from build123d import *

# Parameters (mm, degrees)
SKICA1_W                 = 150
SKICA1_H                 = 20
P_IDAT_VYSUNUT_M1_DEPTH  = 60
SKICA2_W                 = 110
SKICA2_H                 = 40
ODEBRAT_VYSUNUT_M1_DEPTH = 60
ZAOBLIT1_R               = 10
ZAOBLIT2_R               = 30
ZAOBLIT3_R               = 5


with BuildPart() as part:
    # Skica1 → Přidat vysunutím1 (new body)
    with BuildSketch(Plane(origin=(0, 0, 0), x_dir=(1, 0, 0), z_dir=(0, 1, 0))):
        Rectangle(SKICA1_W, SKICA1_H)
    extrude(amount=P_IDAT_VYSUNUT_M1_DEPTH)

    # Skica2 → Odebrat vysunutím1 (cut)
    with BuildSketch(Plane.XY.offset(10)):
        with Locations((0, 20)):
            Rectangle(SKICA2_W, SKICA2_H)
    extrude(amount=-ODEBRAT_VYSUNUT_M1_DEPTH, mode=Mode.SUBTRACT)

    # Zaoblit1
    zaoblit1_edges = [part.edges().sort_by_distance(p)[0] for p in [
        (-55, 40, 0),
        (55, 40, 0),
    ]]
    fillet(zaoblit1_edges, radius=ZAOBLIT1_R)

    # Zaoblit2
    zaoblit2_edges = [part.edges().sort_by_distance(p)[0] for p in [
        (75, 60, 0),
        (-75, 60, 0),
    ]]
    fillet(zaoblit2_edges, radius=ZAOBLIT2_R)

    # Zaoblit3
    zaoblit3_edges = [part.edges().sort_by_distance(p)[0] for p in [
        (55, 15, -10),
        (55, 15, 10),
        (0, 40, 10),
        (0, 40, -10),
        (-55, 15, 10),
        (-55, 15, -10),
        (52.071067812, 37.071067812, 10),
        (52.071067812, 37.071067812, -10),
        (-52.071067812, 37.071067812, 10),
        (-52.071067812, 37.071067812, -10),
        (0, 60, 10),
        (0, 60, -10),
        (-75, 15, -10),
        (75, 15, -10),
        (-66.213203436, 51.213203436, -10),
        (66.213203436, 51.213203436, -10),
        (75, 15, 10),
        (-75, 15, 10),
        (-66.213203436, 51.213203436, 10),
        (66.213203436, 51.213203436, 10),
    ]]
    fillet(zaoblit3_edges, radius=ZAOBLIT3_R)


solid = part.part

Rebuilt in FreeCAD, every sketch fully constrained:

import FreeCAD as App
import Part
import Sketcher

V = App.Vector


def edges_at(feature, points):
    """Names of the edges that pass closest to the given points."""
    edges = feature.Shape.Edges
    near = lambda p: min(range(len(edges)), key=lambda i: edges[i].distToShape(Part.Vertex(*p))[0])
    return sorted({f"Edge{near(p) + 1}" for p in points})

doc = App.newDocument("Part")
body = doc.addObject("PartDesign::Body", "Body")

# Sketch on XZ plane
sketch1 = body.newObject("Sketcher::SketchObject", "Sketch")
sketch1.AttachmentSupport = (doc.getObject("XZ_Plane"), [""])
sketch1.MapMode = "FlatFace"
sketch1.addGeometry(Part.LineSegment(V(-75, -10, 0), V(-75, 10, 0)), False)
sketch1.addGeometry(Part.LineSegment(V(-75, 10, 0), V(75, 10, 0)), False)
sketch1.addGeometry(Part.LineSegment(V(75, 10, 0), V(75, -10, 0)), False)
sketch1.addGeometry(Part.LineSegment(V(75, -10, 0), V(-75, -10, 0)), False)
sketch1.addConstraint(Sketcher.Constraint("Coincident", 0, 2, 1, 1))
sketch1.addConstraint(Sketcher.Constraint("Coincident", 1, 2, 2, 1))
sketch1.addConstraint(Sketcher.Constraint("Coincident", 2, 2, 3, 1))
sketch1.addConstraint(Sketcher.Constraint("Coincident", 3, 2, 0, 1))
sketch1.addConstraint(Sketcher.Constraint("Vertical", 0))
sketch1.addConstraint(Sketcher.Constraint("Horizontal", 1))
sketch1.addConstraint(Sketcher.Constraint("Vertical", 2))
sketch1.addConstraint(Sketcher.Constraint("Horizontal", 3))
sketch1.addConstraint(Sketcher.Constraint("Symmetric", 0, 2, 2, 2, -1, 1))
sketch1.addConstraint(Sketcher.Constraint("DistanceX", 1, 1, 1, 2, 150.0))
sketch1.addConstraint(Sketcher.Constraint("DistanceY", 0, 1, 0, 2, 20.0))
pad1 = body.newObject("PartDesign::Pad", "Pad")
pad1.Profile = sketch1
pad1.Length = 60
pad1.Reversed = True

# Sketch on XY plane
sketch2 = body.newObject("Sketcher::SketchObject", "Sketch001")
sketch2.AttachmentSupport = (doc.getObject("XY_Plane"), [""])
sketch2.MapMode = "FlatFace"
sketch2.AttachmentOffset = App.Placement(V(0, 0, 10), App.Rotation())
sketch2.addGeometry(Part.LineSegment(V(-55, 40, 0), V(-55, 0, 0)), False)
sketch2.addGeometry(Part.LineSegment(V(-55, 0, 0), V(55, 0, 0)), False)
sketch2.addGeometry(Part.LineSegment(V(55, 0, 0), V(55, 40, 0)), False)
sketch2.addGeometry(Part.LineSegment(V(55, 40, 0), V(-55, 40, 0)), False)
sketch2.addConstraint(Sketcher.Constraint("Coincident", 0, 2, 1, 1))
sketch2.addConstraint(Sketcher.Constraint("Coincident", 1, 2, 2, 1))
sketch2.addConstraint(Sketcher.Constraint("Coincident", 2, 2, 3, 1))
sketch2.addConstraint(Sketcher.Constraint("Coincident", 3, 2, 0, 1))
sketch2.addConstraint(Sketcher.Constraint("Vertical", 0))
sketch2.addConstraint(Sketcher.Constraint("Horizontal", 1))
sketch2.addConstraint(Sketcher.Constraint("Vertical", 2))
sketch2.addConstraint(Sketcher.Constraint("Horizontal", 3))
sketch2.addConstraint(Sketcher.Constraint("Symmetric", 0, 2, 1, 2, -1, 1))
sketch2.addConstraint(Sketcher.Constraint("DistanceX", 1, 1, 1, 2, 110.0))
sketch2.addConstraint(Sketcher.Constraint("DistanceY", 0, 2, 0, 1, 40.0))
pocket1 = body.newObject("PartDesign::Pocket", "Pocket")
pocket1.Profile = sketch2
pocket1.Length = 60
doc.recompute()

fillet = body.newObject("PartDesign::Fillet", "Fillet")
fillet.Base = (pocket1, edges_at(pocket1, [(-55, 40, 0), (55, 40, 0)]))
fillet.Radius = 10
doc.recompute()

fillet2 = body.newObject("PartDesign::Fillet", "Fillet001")
fillet2.Base = (fillet, edges_at(fillet, [(75, 60, 0), (-75, 60, 0)]))
fillet2.Radius = 30
doc.recompute()

fillet3 = body.newObject("PartDesign::Fillet", "Fillet002")
fillet3.Base = (fillet2, edges_at(fillet2, [
    (55, 15, -10),
    (55, 15, 10),
    (0, 40, 10),
    (0, 40, -10),
    (-55, 15, 10),
    (-55, 15, -10),
    (52.071, 37.071, 10),
    (52.071, 37.071, -10),
    (-52.071, 37.071, 10),
    (-52.071, 37.071, -10),
    (0, 60, 10),
    (0, 60, -10),
    (-75, 15, -10),
    (75, 15, -10),
    (-66.213, 51.213, -10),
    (66.213, 51.213, -10),
    (75, 15, 10),
    (-75, 15, 10),
    (-66.213, 51.213, 10),
    (66.213, 51.213, 10),
]))
fillet3.Radius = 5

doc.recompute()
